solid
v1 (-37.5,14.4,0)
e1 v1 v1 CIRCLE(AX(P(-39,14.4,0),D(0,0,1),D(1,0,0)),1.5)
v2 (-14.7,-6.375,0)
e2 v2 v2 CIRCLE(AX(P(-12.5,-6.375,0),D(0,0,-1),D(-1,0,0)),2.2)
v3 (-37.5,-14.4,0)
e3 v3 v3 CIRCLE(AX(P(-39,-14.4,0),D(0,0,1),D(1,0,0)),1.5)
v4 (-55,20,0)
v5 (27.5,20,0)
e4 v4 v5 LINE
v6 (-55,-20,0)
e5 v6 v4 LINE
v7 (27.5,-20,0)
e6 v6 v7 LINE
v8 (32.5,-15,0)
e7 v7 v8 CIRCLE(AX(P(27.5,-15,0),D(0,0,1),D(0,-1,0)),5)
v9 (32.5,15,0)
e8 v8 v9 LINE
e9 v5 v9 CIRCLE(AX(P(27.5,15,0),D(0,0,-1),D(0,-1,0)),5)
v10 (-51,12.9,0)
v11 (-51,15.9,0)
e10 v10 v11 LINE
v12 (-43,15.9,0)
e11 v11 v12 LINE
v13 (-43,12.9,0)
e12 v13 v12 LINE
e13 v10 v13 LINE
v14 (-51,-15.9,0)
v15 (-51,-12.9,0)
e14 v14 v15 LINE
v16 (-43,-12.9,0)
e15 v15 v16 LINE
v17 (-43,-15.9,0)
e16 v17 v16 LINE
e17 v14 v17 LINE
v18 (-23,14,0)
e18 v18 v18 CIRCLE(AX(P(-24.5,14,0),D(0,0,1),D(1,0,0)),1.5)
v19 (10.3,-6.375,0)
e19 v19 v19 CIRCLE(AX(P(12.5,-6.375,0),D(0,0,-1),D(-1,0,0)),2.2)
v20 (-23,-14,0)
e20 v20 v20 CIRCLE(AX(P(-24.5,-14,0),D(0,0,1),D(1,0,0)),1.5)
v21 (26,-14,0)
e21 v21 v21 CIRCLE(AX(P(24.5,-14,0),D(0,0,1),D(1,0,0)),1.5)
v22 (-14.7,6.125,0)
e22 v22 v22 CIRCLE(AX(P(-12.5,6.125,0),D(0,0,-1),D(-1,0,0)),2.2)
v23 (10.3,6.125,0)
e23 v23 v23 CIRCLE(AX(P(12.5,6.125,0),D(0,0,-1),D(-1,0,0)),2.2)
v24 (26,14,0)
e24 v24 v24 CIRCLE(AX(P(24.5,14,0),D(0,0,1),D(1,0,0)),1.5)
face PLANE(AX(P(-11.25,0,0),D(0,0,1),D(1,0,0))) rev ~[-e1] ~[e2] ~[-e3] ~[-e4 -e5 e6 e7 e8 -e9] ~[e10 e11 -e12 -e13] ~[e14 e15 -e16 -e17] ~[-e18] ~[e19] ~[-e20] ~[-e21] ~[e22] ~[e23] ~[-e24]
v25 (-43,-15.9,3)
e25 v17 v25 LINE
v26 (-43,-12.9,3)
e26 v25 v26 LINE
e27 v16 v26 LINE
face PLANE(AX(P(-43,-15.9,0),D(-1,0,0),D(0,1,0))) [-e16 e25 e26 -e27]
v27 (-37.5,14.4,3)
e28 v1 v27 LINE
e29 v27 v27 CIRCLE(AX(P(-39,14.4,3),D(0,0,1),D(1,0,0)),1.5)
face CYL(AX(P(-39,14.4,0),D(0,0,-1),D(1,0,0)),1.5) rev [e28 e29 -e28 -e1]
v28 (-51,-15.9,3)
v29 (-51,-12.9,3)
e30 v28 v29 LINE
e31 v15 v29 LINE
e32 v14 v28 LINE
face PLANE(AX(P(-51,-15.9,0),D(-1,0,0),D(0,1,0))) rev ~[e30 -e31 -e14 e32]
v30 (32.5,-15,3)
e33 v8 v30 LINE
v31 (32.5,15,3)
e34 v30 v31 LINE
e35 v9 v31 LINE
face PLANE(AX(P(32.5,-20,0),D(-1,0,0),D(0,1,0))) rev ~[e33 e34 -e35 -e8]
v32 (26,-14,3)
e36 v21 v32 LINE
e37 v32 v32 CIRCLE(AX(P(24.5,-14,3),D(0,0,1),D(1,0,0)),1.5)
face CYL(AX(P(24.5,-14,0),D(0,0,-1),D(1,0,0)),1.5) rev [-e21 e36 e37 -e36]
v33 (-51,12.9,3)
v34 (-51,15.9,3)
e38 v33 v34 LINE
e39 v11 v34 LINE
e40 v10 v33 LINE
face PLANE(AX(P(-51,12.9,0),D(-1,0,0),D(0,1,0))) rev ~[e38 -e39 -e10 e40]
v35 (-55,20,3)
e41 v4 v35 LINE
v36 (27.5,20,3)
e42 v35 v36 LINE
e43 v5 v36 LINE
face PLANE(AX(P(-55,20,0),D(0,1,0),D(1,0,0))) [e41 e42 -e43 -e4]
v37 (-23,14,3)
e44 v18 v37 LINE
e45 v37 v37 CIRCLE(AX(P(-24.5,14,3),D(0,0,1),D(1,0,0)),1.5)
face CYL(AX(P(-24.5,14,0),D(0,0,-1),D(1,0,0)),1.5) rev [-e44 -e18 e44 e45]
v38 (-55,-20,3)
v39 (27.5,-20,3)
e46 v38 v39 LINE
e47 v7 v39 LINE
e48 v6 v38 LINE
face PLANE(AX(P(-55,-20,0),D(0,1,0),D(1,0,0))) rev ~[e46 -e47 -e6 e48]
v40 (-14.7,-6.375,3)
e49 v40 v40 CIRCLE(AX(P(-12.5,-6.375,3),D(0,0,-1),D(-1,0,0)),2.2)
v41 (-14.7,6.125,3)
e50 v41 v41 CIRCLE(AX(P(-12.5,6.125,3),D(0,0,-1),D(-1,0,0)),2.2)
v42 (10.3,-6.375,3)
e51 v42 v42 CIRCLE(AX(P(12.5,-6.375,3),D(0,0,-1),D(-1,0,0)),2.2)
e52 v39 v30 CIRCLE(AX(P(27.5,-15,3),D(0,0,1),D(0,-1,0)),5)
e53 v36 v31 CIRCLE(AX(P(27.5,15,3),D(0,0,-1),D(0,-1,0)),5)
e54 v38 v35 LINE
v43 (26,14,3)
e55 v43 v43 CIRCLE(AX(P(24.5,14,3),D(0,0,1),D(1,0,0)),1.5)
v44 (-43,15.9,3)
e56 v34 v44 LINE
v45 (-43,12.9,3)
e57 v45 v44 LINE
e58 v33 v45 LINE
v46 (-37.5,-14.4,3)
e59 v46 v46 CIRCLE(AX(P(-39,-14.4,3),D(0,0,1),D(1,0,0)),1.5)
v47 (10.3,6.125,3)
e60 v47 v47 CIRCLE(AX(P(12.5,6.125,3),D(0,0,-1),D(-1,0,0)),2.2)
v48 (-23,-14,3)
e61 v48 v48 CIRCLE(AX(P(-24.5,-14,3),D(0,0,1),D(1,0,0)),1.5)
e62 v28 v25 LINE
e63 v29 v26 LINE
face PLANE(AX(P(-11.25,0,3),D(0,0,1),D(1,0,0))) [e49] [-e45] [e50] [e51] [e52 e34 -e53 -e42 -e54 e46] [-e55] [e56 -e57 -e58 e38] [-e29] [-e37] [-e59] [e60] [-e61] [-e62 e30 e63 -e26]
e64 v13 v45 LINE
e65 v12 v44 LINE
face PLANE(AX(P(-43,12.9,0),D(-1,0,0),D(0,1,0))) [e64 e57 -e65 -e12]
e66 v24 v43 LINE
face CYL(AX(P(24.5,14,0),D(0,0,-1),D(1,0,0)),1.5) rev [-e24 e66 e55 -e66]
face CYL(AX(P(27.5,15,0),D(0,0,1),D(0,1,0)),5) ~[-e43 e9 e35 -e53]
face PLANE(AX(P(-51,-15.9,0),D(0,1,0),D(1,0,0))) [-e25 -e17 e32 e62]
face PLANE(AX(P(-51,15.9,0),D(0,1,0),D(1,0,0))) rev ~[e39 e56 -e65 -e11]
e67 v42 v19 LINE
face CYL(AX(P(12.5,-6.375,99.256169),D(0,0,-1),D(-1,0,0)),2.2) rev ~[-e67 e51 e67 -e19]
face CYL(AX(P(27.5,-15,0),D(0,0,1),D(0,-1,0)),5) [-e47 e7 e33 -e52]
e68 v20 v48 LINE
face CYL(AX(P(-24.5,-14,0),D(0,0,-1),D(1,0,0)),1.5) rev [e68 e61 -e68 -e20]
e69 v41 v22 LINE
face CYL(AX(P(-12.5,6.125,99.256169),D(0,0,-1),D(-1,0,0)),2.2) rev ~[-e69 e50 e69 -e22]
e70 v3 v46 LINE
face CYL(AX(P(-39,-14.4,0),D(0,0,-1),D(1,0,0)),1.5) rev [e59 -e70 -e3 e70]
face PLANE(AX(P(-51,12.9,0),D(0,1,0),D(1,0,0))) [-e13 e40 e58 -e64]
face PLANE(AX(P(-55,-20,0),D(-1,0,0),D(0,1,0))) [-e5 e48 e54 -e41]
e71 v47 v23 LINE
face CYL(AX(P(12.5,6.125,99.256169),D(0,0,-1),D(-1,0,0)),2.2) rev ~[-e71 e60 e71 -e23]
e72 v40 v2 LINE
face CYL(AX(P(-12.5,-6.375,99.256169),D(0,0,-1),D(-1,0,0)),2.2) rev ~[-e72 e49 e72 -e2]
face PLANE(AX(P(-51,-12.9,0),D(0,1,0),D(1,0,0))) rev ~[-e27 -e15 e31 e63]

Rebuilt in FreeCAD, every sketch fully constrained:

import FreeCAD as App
import Part
import Sketcher
from FreeCAD import Vector
Q = App.Units.Quantity


def edges_at(feature, points):
    """Names of the edges that pass closest to the given points."""
    edges = feature.Shape.Edges
    near = lambda p: min(range(len(edges)), key=lambda i: edges[i].distToShape(Part.Vertex(*p))[0])
    return sorted({f"Edge{near(p) + 1}" for p in points})


def add_polygon(sketch, points):
    """Adds a closed chain of lines whose ends are joined by coincident constraints."""
    first, n = sketch.GeometryCount, len(points)
    for a, b in zip(points, points[1:] + points[:1]):
        sketch.addGeometry(Part.LineSegment(App.Vector(*a, 0), App.Vector(*b, 0)), False)
    for i in range(n):
        sketch.addConstraint(Sketcher.Constraint("Coincident", first + i, 2, first + (i + 1) % n, 1))

doc = App.newDocument("Part")
body = doc.addObject("PartDesign::Body", "Body")

# Sketch on XY plane
sketch1 = body.newObject("Sketcher::SketchObject", "Sketch")
sketch1.AttachmentSupport = (doc.getObject("XY_Plane"), [""])
sketch1.MapMode = "FlatFace"
add_polygon(sketch1, [(-55, 20), (-55, -20), (32.5, -20), (32.5, 20)])  # lines 0-3
add_polygon(sketch1, [(-43, -15.9), (-51, -15.9), (-51, -12.9), (-43, -12.9)])  # lines 4-7
sketch1.addGeometry(Part.Circle(Vector(-39, -14.4, 0), Vector(0, 0, 1), 1.5), False)  # 8
sketch1.addGeometry(Part.Circle(Vector(-24.5, -14, 0), Vector(0, 0, 1), 1.5), False)  # 9
sketch1.addGeometry(Part.Circle(Vector(24.5, -14, 0), Vector(0, 0, 1), 1.5), False)  # 10
add_polygon(sketch1, [(-43, 12.9), (-51, 12.9), (-51, 15.9), (-43, 15.9)])  # lines 11-14
sketch1.addGeometry(Part.Circle(Vector(-39, 14.4, 0), Vector(0, 0, 1), 1.5), False)  # 15
sketch1.addGeometry(Part.Circle(Vector(-24.5, 14, 0), Vector(0, 0, 1), 1.5), False)  # 16
sketch1.addGeometry(Part.Circle(Vector(24.5, 14, 0), Vector(0, 0, 1), 1.5), False)  # 17
sketch1.addConstraint([
    Sketcher.Constraint("Vertical", 0),
    Sketcher.Constraint("Horizontal", 1),
    Sketcher.Constraint("Vertical", 2),
    Sketcher.Constraint("Horizontal", 3),
    Sketcher.Constraint("Horizontal", 4),
    Sketcher.Constraint("Vertical", 5),
    Sketcher.Constraint("Horizontal", 6),
    Sketcher.Constraint("Vertical", 7),
    Sketcher.Constraint("Horizontal", 11),
    Sketcher.Constraint("Vertical", 12),
    Sketcher.Constraint("Horizontal", 13),
    Sketcher.Constraint("Vertical", 14),
    Sketcher.Constraint("Equal", 8, 9),
    Sketcher.Constraint("Equal", 9, 10),
    Sketcher.Constraint("Equal", 10, 15),
    Sketcher.Constraint("Equal", 15, 16),
    Sketcher.Constraint("Equal", 16, 17),
    Sketcher.Constraint("Symmetric", 10, 3, 16, 3, -1, 1),
    Sketcher.Constraint("Symmetric", 9, 3, 17, 3, -1, 1),
    Sketcher.Constraint("Symmetric", 9, 3, 10, 3, -2),
    Sketcher.Constraint("Symmetric", 8, 3, 15, 3, -1),
    Sketcher.Constraint("Symmetric", 5, 2, 11, 2, -1),
    Sketcher.Constraint("Symmetric", 7, 2, 13, 2, -1),
    Sketcher.Constraint("Diameter", 8, Q("3 mm")),
    Sketcher.Constraint("DistanceX", 4, 2, 4, 1, Q("8 mm")),
    Sketcher.Constraint("DistanceY", 0, 2, 0, 1, Q("40 mm")),
    Sketcher.Constraint("DistanceY", 5, 1, 5, 2, Q("3 mm")),
    Sketcher.Constraint("DistanceX", 1, 1, 1, 2, Q("87.5 mm")),
    Sketcher.Constraint("DistanceX", 8, 3, -1, 1, Q("39 mm")),
    Sketcher.Constraint("DistanceY", 9, 3, -1, 1, Q("14 mm")),
    Sketcher.Constraint("DistanceX", 0, 2, -1, 1, Q("55 mm")),
    Sketcher.Constraint("DistanceY", 0, 2, -1, 1, Q("20 mm")),
    Sketcher.Constraint("DistanceX", 4, 2, -1, 1, Q("51 mm")),
    Sketcher.Constraint("DistanceX", 9, 3, 10, 3, Q("49 mm")),
    Sketcher.Constraint("DistanceY", 8, 3, -1, 1, Q("14.4 mm")),
    Sketcher.Constraint("DistanceY", 4, 2, -1, 1, Q("15.9 mm")),
])
pad1 = body.newObject("PartDesign::Pad", "Pad")
pad1.Profile = sketch1
pad1.Length = 3

# Sketch on XY plane
sketch2 = body.newObject("Sketcher::SketchObject", "Sketch001")
sketch2.AttachmentSupport = (doc.getObject("XY_Plane"), [""])
sketch2.MapMode = "FlatFace"
sketch2.AttachmentOffset = App.Placement(Vector(0, 0, 3), App.Rotation())
sketch2.addGeometry([
    Part.Circle(Vector(-12.5, 6.125, 0), Vector(0, 0, 1), 2.2),
    Part.Circle(Vector(-12.5, -6.375, 0), Vector(0, 0, 1), 2.2),
    Part.Circle(Vector(12.5, 6.125, 0), Vector(0, 0, 1), 2.2),
    Part.Circle(Vector(12.5, -6.375, 0), Vector(0, 0, 1), 2.2),
], False)
sketch2.addConstraint([
    Sketcher.Constraint("Equal", 0, 1),
    Sketcher.Constraint("Equal", 1, 2),
    Sketcher.Constraint("Equal", 2, 3),
    Sketcher.Constraint("Symmetric", 0, 3, 2, 3, -2),
    Sketcher.Constraint("Symmetric", 1, 3, 3, 3, -2),
    Sketcher.Constraint("Vertical", 0, 3, 1, 3),
    Sketcher.Constraint("Diameter", 0, Q("4.4 mm")),
    Sketcher.Constraint("DistanceX", 0, 3, 2, 3, Q("25 mm")),
    Sketcher.Constraint("DistanceY", 1, 3, 0, 3, Q("12.5 mm")),
    Sketcher.Constraint("DistanceY", -1, 1, 0, 3, Q("6.125 mm")),
])
doc.recompute()
hole = body.newObject("PartDesign::Hole", "Hole")
hole.Profile = sketch2
hole.ThreadType = "None"
hole.Diameter = 4.4
hole.DepthType = "ThroughAll"
doc.recompute()

fillet = body.newObject("PartDesign::Fillet", "Fillet")
fillet.Base = (hole, edges_at(hole, [(32.5, 20, 1.5), (32.5, -20, 1.5)]))
fillet.Radius = 5

doc.recompute()
